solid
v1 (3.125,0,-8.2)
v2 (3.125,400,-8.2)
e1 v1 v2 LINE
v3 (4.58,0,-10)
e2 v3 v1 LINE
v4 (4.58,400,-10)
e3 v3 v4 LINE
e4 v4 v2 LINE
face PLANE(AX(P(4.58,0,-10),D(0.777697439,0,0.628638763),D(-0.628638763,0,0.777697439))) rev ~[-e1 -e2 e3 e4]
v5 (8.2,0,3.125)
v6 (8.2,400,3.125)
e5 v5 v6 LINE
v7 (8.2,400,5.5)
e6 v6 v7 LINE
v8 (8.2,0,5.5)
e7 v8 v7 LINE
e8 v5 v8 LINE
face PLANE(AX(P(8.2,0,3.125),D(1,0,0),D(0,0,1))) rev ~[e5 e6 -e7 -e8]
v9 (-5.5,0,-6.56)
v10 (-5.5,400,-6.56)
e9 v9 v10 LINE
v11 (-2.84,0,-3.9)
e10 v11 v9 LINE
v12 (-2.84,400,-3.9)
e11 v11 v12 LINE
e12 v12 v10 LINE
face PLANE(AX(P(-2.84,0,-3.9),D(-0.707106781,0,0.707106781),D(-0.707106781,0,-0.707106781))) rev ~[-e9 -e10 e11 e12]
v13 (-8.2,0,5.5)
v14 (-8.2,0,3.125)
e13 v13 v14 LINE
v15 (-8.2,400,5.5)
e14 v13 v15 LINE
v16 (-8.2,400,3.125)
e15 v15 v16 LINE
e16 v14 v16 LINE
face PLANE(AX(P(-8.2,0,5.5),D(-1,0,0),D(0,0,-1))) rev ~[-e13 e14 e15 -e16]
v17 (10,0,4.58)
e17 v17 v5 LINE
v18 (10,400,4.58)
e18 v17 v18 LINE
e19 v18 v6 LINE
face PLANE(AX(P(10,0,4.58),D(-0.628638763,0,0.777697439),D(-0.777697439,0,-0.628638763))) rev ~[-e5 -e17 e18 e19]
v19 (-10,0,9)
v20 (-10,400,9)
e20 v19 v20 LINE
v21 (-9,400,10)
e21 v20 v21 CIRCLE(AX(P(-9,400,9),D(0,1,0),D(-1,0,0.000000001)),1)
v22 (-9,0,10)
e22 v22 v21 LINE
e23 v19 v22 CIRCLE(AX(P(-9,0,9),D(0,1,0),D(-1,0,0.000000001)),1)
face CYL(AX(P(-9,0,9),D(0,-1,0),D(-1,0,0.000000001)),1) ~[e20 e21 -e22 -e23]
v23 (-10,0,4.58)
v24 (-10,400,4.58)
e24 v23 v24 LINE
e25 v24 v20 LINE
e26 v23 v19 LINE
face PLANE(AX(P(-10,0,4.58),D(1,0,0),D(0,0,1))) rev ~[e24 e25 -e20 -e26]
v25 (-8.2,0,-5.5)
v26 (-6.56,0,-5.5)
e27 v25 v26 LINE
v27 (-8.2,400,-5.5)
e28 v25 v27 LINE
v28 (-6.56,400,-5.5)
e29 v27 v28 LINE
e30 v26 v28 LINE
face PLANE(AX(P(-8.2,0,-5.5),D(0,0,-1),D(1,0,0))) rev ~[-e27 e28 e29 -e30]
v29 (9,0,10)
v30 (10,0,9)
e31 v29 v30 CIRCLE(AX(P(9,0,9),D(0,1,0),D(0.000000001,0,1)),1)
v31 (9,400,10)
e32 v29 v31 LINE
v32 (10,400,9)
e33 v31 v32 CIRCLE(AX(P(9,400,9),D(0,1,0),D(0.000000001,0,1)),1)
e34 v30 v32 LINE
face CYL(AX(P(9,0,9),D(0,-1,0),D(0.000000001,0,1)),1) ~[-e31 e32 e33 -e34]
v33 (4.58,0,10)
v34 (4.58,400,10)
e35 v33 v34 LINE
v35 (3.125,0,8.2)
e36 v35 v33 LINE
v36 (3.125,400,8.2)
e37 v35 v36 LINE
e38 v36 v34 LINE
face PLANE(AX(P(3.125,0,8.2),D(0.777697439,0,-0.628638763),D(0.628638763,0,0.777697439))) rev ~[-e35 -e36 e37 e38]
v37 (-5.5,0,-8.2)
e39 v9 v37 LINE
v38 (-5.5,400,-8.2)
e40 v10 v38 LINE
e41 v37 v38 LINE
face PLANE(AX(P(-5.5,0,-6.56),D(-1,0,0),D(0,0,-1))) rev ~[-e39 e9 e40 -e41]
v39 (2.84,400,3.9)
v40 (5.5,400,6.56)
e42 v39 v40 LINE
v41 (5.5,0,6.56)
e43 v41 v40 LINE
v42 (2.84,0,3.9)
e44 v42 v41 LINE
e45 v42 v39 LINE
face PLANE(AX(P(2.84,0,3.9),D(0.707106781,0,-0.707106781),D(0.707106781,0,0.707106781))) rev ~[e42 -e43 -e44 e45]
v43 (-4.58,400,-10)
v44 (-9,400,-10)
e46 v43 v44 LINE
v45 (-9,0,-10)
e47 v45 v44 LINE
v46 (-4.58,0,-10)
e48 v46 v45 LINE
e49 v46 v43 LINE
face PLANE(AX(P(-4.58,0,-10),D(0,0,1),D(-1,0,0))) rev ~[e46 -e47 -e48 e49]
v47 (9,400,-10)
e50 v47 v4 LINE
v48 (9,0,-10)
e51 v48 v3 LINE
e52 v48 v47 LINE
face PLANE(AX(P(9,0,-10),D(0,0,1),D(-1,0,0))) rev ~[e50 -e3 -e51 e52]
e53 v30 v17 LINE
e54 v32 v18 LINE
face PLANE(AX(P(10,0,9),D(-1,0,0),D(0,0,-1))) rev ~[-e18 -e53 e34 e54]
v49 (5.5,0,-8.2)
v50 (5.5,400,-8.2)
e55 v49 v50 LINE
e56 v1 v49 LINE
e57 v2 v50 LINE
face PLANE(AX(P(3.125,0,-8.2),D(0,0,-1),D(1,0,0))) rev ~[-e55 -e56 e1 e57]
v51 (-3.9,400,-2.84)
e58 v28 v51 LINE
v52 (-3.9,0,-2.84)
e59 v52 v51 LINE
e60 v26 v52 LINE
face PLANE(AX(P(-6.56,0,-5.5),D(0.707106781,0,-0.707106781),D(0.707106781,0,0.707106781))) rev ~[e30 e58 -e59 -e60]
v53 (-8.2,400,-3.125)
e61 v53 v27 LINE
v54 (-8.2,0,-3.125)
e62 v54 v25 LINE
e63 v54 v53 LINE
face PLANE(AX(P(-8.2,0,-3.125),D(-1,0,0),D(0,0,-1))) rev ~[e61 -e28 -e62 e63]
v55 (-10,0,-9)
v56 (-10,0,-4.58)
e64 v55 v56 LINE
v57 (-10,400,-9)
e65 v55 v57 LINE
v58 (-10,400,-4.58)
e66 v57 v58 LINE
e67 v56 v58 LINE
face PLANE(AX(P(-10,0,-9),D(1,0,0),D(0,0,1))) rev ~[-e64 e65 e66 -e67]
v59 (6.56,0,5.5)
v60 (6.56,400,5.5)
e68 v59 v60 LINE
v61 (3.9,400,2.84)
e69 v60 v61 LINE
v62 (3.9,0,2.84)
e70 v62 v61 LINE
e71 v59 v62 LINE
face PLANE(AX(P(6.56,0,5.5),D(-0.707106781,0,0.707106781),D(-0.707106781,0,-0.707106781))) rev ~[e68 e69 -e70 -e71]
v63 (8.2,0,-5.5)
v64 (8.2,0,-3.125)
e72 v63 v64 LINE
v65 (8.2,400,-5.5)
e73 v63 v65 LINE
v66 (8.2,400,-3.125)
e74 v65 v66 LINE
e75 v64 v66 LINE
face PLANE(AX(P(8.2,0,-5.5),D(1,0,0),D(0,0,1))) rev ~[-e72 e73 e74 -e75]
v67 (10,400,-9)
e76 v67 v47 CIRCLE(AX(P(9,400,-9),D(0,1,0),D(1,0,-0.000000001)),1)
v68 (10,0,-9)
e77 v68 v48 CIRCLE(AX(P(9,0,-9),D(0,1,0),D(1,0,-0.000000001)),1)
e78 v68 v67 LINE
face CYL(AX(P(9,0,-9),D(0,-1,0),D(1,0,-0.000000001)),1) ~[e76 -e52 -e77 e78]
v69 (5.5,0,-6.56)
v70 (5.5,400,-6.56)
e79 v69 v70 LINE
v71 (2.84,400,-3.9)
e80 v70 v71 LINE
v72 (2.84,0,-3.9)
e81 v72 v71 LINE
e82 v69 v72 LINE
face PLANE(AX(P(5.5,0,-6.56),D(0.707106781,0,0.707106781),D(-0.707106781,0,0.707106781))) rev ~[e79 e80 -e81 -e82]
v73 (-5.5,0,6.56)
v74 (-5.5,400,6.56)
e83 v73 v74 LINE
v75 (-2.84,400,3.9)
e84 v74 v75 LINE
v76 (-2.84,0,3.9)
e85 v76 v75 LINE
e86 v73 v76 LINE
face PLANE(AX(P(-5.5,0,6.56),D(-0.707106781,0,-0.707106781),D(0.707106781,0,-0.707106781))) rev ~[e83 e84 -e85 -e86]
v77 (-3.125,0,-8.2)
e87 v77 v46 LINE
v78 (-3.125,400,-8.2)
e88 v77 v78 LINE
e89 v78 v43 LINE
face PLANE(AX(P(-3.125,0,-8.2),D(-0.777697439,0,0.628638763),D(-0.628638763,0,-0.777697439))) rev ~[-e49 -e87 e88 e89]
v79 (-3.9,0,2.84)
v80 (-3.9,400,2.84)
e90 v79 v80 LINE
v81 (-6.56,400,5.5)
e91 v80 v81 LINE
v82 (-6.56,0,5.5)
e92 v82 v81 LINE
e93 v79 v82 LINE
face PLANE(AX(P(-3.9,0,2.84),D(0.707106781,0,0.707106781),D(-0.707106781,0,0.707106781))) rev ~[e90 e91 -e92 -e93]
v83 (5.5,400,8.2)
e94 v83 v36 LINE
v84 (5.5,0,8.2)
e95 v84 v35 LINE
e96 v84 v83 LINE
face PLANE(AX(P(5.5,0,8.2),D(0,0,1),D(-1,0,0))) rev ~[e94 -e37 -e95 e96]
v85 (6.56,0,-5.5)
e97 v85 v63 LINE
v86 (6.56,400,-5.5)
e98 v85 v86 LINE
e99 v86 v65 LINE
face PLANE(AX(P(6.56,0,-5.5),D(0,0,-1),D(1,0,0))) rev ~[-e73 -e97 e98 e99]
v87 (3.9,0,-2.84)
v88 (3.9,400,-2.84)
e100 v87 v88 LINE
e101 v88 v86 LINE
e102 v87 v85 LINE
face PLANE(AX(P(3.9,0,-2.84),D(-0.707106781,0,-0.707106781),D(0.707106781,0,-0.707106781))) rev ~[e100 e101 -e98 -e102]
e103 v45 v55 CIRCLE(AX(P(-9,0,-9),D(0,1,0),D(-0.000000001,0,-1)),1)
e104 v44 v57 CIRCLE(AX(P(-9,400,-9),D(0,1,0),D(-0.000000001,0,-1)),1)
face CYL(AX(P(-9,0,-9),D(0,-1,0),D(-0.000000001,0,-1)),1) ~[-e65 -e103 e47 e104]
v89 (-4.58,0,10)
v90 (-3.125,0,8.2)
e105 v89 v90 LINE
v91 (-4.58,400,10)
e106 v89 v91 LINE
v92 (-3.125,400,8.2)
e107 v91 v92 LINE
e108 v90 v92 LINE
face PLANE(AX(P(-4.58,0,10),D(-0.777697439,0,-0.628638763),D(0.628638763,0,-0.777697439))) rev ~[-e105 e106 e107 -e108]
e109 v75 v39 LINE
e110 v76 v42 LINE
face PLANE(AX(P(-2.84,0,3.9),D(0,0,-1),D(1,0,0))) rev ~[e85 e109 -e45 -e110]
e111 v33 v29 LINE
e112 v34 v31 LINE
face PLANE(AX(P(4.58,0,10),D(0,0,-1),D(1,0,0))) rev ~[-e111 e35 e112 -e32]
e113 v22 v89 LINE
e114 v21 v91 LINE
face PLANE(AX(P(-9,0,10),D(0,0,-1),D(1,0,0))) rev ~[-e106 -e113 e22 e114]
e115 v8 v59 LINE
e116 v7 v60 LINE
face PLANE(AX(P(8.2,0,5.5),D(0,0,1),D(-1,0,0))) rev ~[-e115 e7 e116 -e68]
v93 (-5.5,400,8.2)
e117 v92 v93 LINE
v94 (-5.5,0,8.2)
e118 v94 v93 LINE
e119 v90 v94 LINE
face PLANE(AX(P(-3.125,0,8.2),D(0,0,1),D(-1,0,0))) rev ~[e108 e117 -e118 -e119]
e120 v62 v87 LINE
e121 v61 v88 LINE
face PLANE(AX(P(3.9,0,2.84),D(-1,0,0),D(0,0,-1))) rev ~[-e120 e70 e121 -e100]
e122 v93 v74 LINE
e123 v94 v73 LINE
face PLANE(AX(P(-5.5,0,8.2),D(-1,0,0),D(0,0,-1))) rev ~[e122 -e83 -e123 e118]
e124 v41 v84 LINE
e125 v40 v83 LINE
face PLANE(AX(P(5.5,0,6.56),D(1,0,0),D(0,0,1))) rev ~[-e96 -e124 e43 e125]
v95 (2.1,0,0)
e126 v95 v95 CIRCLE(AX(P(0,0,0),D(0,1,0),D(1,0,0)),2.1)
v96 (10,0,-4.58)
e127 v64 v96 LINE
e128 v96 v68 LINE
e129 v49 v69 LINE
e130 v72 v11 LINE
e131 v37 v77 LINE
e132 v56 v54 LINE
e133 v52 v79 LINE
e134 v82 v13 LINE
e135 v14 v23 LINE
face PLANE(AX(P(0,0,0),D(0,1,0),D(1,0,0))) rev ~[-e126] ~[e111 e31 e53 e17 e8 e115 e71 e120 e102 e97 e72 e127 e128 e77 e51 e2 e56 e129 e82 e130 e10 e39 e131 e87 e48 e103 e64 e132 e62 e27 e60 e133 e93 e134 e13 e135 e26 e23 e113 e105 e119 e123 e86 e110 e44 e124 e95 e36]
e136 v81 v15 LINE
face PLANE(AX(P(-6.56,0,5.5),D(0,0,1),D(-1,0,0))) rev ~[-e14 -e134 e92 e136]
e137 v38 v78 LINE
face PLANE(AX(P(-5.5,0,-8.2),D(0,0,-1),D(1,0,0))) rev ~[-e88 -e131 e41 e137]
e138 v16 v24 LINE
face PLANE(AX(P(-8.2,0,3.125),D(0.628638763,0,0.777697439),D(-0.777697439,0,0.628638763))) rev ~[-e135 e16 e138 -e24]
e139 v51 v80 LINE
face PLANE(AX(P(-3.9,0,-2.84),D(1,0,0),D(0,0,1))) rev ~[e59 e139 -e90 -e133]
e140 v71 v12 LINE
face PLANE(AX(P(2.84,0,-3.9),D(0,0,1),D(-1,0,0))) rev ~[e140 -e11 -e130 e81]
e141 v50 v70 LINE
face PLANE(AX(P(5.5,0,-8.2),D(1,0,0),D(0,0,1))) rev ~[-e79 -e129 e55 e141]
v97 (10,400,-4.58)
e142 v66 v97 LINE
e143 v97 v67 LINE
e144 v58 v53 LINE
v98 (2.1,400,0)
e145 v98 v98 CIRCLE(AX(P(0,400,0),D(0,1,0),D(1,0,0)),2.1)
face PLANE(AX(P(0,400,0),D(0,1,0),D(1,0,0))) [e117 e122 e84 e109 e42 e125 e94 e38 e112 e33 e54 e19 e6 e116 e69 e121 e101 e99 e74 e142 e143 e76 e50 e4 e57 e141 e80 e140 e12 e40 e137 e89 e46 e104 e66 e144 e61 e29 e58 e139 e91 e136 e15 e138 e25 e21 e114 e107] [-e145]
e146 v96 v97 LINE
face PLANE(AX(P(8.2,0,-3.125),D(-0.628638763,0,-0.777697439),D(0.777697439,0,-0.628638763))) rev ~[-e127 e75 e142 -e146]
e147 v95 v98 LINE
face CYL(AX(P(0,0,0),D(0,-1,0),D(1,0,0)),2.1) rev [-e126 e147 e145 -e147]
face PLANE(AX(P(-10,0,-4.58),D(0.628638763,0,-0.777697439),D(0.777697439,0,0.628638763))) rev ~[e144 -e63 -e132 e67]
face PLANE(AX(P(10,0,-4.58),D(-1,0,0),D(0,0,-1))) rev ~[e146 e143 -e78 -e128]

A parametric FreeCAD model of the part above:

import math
import FreeCAD as App
import Part
import Sketcher
from FreeCAD import Vector

doc = App.newDocument("Part")
body = doc.addObject("PartDesign::Body", "Body")

# Sketch on XZ plane
sketch1 = body.newObject("Sketcher::SketchObject", "Sketch")
sketch1.AttachmentSupport = (doc.getObject("XZ_Plane"), [""])
sketch1.MapMode = "FlatFace"
sketch1.addGeometry([
    Part.LineSegment(Vector(-5.5, -8.2, 0), Vector(-3.1, -8.2, 0)),  # 0
    Part.LineSegment(Vector(-3.1, -8.2, 0), Vector(-4.6, -10, 0)),  # 1
    Part.LineSegment(Vector(-4.6, -10, 0), Vector(-9, -10, 0)),  # 2
    Part.ArcOfCircle(Part.Circle(Vector(-9, -9, 0), Vector(0, 0, 1), 1), math.radians(-180), math.radians(-90)),  # 3
    Part.LineSegment(Vector(-10, -9, 0), Vector(-10, -4.6, 0)),  # 4
    Part.LineSegment(Vector(-10, -4.6, 0), Vector(-8.2, -3.1, 0)),  # 5
    Part.LineSegment(Vector(-8.2, -3.1, 0), Vector(-8.2, -5.5, 0)),  # 6
    Part.LineSegment(Vector(-8.2, -5.5, 0), Vector(-6.6, -5.5, 0)),  # 7
    Part.LineSegment(Vector(-6.6, -5.5, 0), Vector(-3.9, -2.8, 0)),  # 8
    Part.LineSegment(Vector(-3.9, -2.8, 0), Vector(-3.9, 2.8, 0)),  # 9
    Part.LineSegment(Vector(-3.9, 2.8, 0), Vector(-6.6, 5.5, 0)),  # 10
    Part.LineSegment(Vector(-6.6, 5.5, 0), Vector(-8.2, 5.5, 0)),  # 11
    Part.LineSegment(Vector(-8.2, 5.5, 0), Vector(-8.2, 3.1, 0)),  # 12
    Part.LineSegment(Vector(-8.2, 3.1, 0), Vector(-10, 4.6, 0)),  # 13
    Part.LineSegment(Vector(-10, 4.6, 0), Vector(-10, 9, 0)),  # 14
    Part.ArcOfCircle(Part.Circle(Vector(-9, 9, 0), Vector(0, 0, 1), 1), math.radians(90), math.radians(180)),  # 15
    Part.LineSegment(Vector(-9, 10, 0), Vector(-4.6, 10, 0)),  # 16
    Part.LineSegment(Vector(-4.6, 10, 0), Vector(-3.1, 8.2, 0)),  # 17
    Part.LineSegment(Vector(-3.1, 8.2, 0), Vector(-5.5, 8.2, 0)),  # 18
    Part.LineSegment(Vector(-5.5, 8.2, 0), Vector(-5.5, 6.6, 0)),  # 19
    Part.LineSegment(Vector(-5.5, 6.6, 0), Vector(-2.8, 3.9, 0)),  # 20
    Part.LineSegment(Vector(-2.8, 3.9, 0), Vector(2.8, 3.9, 0)),  # 21
    Part.LineSegment(Vector(2.8, 3.9, 0), Vector(5.5, 6.6, 0)),  # 22
    Part.LineSegment(Vector(5.5, 6.6, 0), Vector(5.5, 8.2, 0)),  # 23
    Part.LineSegment(Vector(5.5, 8.2, 0), Vector(3.1, 8.2, 0)),  # 24
    Part.LineSegment(Vector(3.1, 8.2, 0), Vector(4.6, 10, 0)),  # 25
    Part.LineSegment(Vector(4.6, 10, 0), Vector(9, 10, 0)),  # 26
    Part.ArcOfCircle(Part.Circle(Vector(9, 9, 0), Vector(0, 0, 1), 1), math.radians(0), math.radians(90)),  # 27
    Part.LineSegment(Vector(10, 9, 0), Vector(10, 4.6, 0)),  # 28
    Part.LineSegment(Vector(10, 4.6, 0), Vector(8.2, 3.1, 0)),  # 29
    Part.LineSegment(Vector(8.2, 3.1, 0), Vector(8.2, 5.5, 0)),  # 30
    Part.LineSegment(Vector(8.2, 5.5, 0), Vector(6.6, 5.5, 0)),  # 31
    Part.LineSegment(Vector(6.6, 5.5, 0), Vector(3.9, 2.8, 0)),  # 32
    Part.LineSegment(Vector(3.9, 2.8, 0), Vector(3.9, -2.8, 0)),  # 33
    Part.LineSegment(Vector(3.9, -2.8, 0), Vector(6.6, -5.5, 0)),  # 34
    Part.LineSegment(Vector(6.6, -5.5, 0), Vector(8.2, -5.5, 0)),  # 35
    Part.LineSegment(Vector(8.2, -5.5, 0), Vector(8.2, -3.1, 0)),  # 36
    Part.LineSegment(Vector(8.2, -3.1, 0), Vector(10, -4.6, 0)),  # 37
    Part.LineSegment(Vector(10, -4.6, 0), Vector(10, -9, 0)),  # 38
    Part.ArcOfCircle(Part.Circle(Vector(9, -9, 0), Vector(0, 0, 1), 1), math.radians(-90), math.radians(0)),  # 39
    Part.LineSegment(Vector(9, -10, 0), Vector(4.6, -10, 0)),  # 40
    Part.LineSegment(Vector(4.6, -10, 0), Vector(3.1, -8.2, 0)),  # 41
    Part.LineSegment(Vector(3.1, -8.2, 0), Vector(5.5, -8.2, 0)),  # 42
    Part.LineSegment(Vector(5.5, -8.2, 0), Vector(5.5, -6.6, 0)),  # 43
    Part.LineSegment(Vector(5.5, -6.6, 0), Vector(2.8, -3.9, 0)),  # 44
    Part.LineSegment(Vector(2.8, -3.9, 0), Vector(-2.8, -3.9, 0)),  # 45
    Part.LineSegment(Vector(-2.8, -3.9, 0), Vector(-5.5, -6.6, 0)),  # 46
    Part.LineSegment(Vector(-5.5, -6.6, 0), Vector(-5.5, -8.2, 0)),  # 47
    Part.Circle(Vector(0, 0, 0), Vector(0, 0, 1), 2.1),  # 48
], False)
sketch1.addConstraint([
    Sketcher.Constraint("Coincident", 0, 2, 1, 1),
    Sketcher.Constraint("Coincident", 1, 2, 2, 1),
    Sketcher.Constraint("Tangent", 2, 2, 3, 2),
    Sketcher.Constraint("Tangent", 3, 1, 4, 1),
    Sketcher.Constraint("Coincident", 4, 2, 5, 1),
    Sketcher.Constraint("Coincident", 5, 2, 6, 1),
    Sketcher.Constraint("Coincident", 6, 2, 7, 1),
    Sketcher.Constraint("Coincident", 7, 2, 8, 1),
    Sketcher.Constraint("Coincident", 8, 2, 9, 1),
    Sketcher.Constraint("Coincident", 9, 2, 10, 1),
    Sketcher.Constraint("Coincident", 10, 2, 11, 1),
    Sketcher.Constraint("Coincident", 11, 2, 12, 1),
    Sketcher.Constraint("Coincident", 12, 2, 13, 1),
    Sketcher.Constraint("Coincident", 13, 2, 14, 1),
    Sketcher.Constraint("Tangent", 14, 2, 15, 2),
    Sketcher.Constraint("Tangent", 15, 1, 16, 1),
    Sketcher.Constraint("Coincident", 16, 2, 17, 1),
    Sketcher.Constraint("Coincident", 17, 2, 18, 1),
    Sketcher.Constraint("Coincident", 18, 2, 19, 1),
    Sketcher.Constraint("Coincident", 19, 2, 20, 1),
    Sketcher.Constraint("Coincident", 20, 2, 21, 1),
    Sketcher.Constraint("Coincident", 21, 2, 22, 1),
    Sketcher.Constraint("Coincident", 22, 2, 23, 1),
    Sketcher.Constraint("Coincident", 23, 2, 24, 1),
    Sketcher.Constraint("Coincident", 24, 2, 25, 1),
    Sketcher.Constraint("Coincident", 25, 2, 26, 1),
    Sketcher.Constraint("Tangent", 26, 2, 27, 2),
    Sketcher.Constraint("Tangent", 27, 1, 28, 1),
    Sketcher.Constraint("Coincident", 28, 2, 29, 1),
    Sketcher.Constraint("Coincident", 29, 2, 30, 1),
    Sketcher.Constraint("Coincident", 30, 2, 31, 1),
    Sketcher.Constraint("Coincident", 31, 2, 32, 1),
    Sketcher.Constraint("Coincident", 32, 2, 33, 1),
    Sketcher.Constraint("Coincident", 33, 2, 34, 1),
    Sketcher.Constraint("Coincident", 34, 2, 35, 1),
    Sketcher.Constraint("Coincident", 35, 2, 36, 1),
    Sketcher.Constraint("Coincident", 36, 2, 37, 1),
    Sketcher.Constraint("Coincident", 37, 2, 38, 1),
    Sketcher.Constraint("Tangent", 38, 2, 39, 2),
    Sketcher.Constraint("Tangent", 39, 1, 40, 1),
    Sketcher.Constraint("Coincident", 40, 2, 41, 1),
    Sketcher.Constraint("Coincident", 41, 2, 42, 1),
    Sketcher.Constraint("Coincident", 42, 2, 43, 1),
    Sketcher.Constraint("Coincident", 43, 2, 44, 1),
    Sketcher.Constraint("Coincident", 44, 2, 45, 1),
    Sketcher.Constraint("Coincident", 45, 2, 46, 1),
    Sketcher.Constraint("Coincident", 46, 2, 47, 1),
    Sketcher.Constraint("Coincident", 47, 2, 0, 1),
    Sketcher.Constraint("Horizontal", 0),
    Sketcher.Constraint("Horizontal", 2),
    Sketcher.Constraint("Vertical", 4),
    Sketcher.Constraint("Vertical", 6),
    Sketcher.Constraint("Horizontal", 7),
    Sketcher.Constraint("Vertical", 9),
    Sketcher.Constraint("Horizontal", 11),
    Sketcher.Constraint("Vertical", 12),
    Sketcher.Constraint("Vertical", 14),
    Sketcher.Constraint("Horizontal", 16),
    Sketcher.Constraint("Horizontal", 18),
    Sketcher.Constraint("Vertical", 19),
    Sketcher.Constraint("Horizontal", 21),
    Sketcher.Constraint("Vertical", 23),
    Sketcher.Constraint("Horizontal", 24),
    Sketcher.Constraint("Horizontal", 26),
    Sketcher.Constraint("Vertical", 28),
    Sketcher.Constraint("Vertical", 30),
    Sketcher.Constraint("Horizontal", 31),
    Sketcher.Constraint("Vertical", 33),
    Sketcher.Constraint("Horizontal", 35),
    Sketcher.Constraint("Vertical", 36),
    Sketcher.Constraint("Vertical", 38),
    Sketcher.Constraint("Horizontal", 40),
    Sketcher.Constraint("Horizontal", 42),
    Sketcher.Constraint("Vertical", 43),
    Sketcher.Constraint("Horizontal", 45),
    Sketcher.Constraint("Vertical", 47),
    Sketcher.Constraint("Coincident", 48, 3, -1, 1),
    Sketcher.Constraint("Equal", 3, 15),
    Sketcher.Constraint("Equal", 15, 27),
    Sketcher.Constraint("Equal", 27, 39),
    Sketcher.Constraint("Symmetric", 3, 3, 27, 3, -1, 1),
    Sketcher.Constraint("Symmetric", 15, 3, 39, 3, -1, 1),
    Sketcher.Constraint("Symmetric", 0, 2, 24, 2, -1, 1),
    Sketcher.Constraint("Symmetric", 5, 2, 29, 2, -1, 1),
    Sketcher.Constraint("Symmetric", 7, 2, 31, 2, -1, 1),
    Sketcher.Constraint("Symmetric", 8, 2, 32, 2, -1, 1),
    Sketcher.Constraint("Symmetric", 10, 2, 34, 2, -1, 1),
    Sketcher.Constraint("Symmetric", 12, 2, 36, 2, -1, 1),
    Sketcher.Constraint("Symmetric", 17, 2, 41, 2, -1, 1),
    Sketcher.Constraint("Symmetric", 19, 2, 43, 2, -1, 1),
    Sketcher.Constraint("Symmetric", 20, 2, 44, 2, -1, 1),
    Sketcher.Constraint("Symmetric", 22, 2, 46, 2, -1, 1),
    Sketcher.Constraint("Symmetric", 15, 3, 27, 3, -2),
    Sketcher.Constraint("Symmetric", 19, 2, 22, 2, -2),
    Sketcher.Constraint("Symmetric", 17, 2, 24, 2, -2),
    Sketcher.Constraint("Symmetric", 12, 2, 29, 2, -2),
    Sketcher.Constraint("Symmetric", 10, 2, 31, 2, -2),
    Sketcher.Constraint("Perpendicular", 8, 10),
    Sketcher.Constraint("Perpendicular", 1, 13),
    Sketcher.Constraint("Perpendicular", 5, 17),
    Sketcher.Constraint("Parallel", 10, 20),
    Sketcher.Constraint("Perpendicular", 20, 22),
    Sketcher.Constraint("Perpendicular", 13, 25),
    Sketcher.Constraint("Perpendicular", 17, 29),
    Sketcher.Constraint("Perpendicular", 32, 34),
    Sketcher.Constraint("Perpendicular", 25, 37),
    Sketcher.Constraint("Perpendicular", 29, 41),
    Sketcher.Constraint("Perpendicular", 44, 46),
    Sketcher.Constraint("Horizontal", 13, 2, 28, 2),
    Sketcher.Constraint("Horizontal", 9, 2, 32, 2),
    Sketcher.Constraint("Equal", 40, 4),
    Sketcher.Constraint("Equal", 42, 6),
    Sketcher.Constraint("Equal", 45, 9),
    Sketcher.Constraint("Equal", 35, 19),
    Sketcher.Constraint("Equal", 1, 5),
    Sketcher.Constraint("Equal", 10, 20),
    Sketcher.Constraint("Radius", 3, 1.0),
    Sketcher.Constraint("Diameter", 48, 4.2),
    Sketcher.Constraint("DistanceX", 3, 3, -1, 1, 9.0),
    Sketcher.Constraint("DistanceX", 2, 2, 2, 1, 4.42),
    Sketcher.Constraint("DistanceX", 7, 1, 7, 2, 1.64),
    Sketcher.Constraint("DistanceX", 21, 1, 21, 2, 5.68),
    Sketcher.Constraint("DistanceY", 0, 2, -1, 1, 8.2),
    Sketcher.Constraint("DistanceY", 6, 2, -1, 1, 5.5),
    Sketcher.Constraint("DistanceX", 0, 1, 0, 2, 2.375),
])
pad1 = body.newObject("PartDesign::Pad", "Pad")
pad1.Profile = sketch1
pad1.Length = 400
pad1.Reversed = True

doc.recompute()
